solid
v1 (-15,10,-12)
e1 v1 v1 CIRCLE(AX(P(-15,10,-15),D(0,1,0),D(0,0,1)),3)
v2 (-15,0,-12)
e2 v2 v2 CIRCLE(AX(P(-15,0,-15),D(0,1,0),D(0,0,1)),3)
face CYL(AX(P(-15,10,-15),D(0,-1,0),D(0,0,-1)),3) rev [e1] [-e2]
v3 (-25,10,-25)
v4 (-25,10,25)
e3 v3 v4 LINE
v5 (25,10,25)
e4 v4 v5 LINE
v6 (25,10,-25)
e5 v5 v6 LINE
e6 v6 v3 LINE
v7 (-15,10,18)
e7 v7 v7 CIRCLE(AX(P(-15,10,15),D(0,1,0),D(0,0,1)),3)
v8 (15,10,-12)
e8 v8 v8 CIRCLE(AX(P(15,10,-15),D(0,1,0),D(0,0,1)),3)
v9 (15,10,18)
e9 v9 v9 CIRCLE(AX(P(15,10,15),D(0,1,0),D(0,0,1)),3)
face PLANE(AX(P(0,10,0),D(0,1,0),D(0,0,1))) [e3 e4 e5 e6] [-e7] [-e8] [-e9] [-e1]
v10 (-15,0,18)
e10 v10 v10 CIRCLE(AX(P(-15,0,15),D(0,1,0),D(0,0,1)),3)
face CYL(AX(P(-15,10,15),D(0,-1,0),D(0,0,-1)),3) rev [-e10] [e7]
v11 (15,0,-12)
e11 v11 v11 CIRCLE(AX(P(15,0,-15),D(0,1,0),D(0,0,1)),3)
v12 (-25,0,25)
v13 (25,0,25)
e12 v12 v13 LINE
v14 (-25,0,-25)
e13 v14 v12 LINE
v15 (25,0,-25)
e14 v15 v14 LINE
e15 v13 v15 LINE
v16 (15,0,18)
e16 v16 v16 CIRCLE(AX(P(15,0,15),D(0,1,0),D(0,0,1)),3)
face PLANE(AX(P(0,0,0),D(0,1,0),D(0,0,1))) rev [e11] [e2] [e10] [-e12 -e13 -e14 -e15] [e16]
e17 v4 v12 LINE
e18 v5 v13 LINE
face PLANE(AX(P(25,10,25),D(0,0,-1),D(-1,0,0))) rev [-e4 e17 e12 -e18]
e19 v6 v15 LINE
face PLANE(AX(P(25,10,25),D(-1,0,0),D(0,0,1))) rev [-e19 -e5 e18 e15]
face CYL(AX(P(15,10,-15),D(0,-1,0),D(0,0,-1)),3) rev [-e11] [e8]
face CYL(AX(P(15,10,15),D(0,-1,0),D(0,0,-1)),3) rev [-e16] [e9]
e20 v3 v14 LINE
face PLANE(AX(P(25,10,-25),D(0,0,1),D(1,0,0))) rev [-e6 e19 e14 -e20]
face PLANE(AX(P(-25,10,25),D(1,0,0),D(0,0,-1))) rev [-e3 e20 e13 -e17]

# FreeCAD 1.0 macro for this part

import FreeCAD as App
import Part
import Sketcher

doc = App.newDocument("Part")
body = doc.addObject("PartDesign::Body", "Body")

# Sketch on XZ plane
sketch1 = body.newObject("Sketcher::SketchObject", "Sketch")
sketch1.AttachmentSupport = (doc.getObject("XZ_Plane"), [""])
sketch1.MapMode = "FlatFace"
sketch1.addGeometry(Part.LineSegment(App.Vector(-25, -25, 0), App.Vector(-25, 25, 0)), False)
sketch1.addGeometry(Part.LineSegment(App.Vector(-25, 25, 0), App.Vector(25, 25, 0)), False)
sketch1.addGeometry(Part.LineSegment(App.Vector(25, 25, 0), App.Vector(25, -25, 0)), False)
sketch1.addGeometry(Part.LineSegment(App.Vector(25, -25, 0), App.Vector(-25, -25, 0)), False)
sketch1.addGeometry(Part.Circle(App.Vector(-15, 15, 0), App.Vector(0, 0, 1), 3), False)
sketch1.addGeometry(Part.Circle(App.Vector(15, 15, 0), App.Vector(0, 0, 1), 3), False)
sketch1.addGeometry(Part.Circle(App.Vector(-15, -15, 0), App.Vector(0, 0, 1), 3), False)
sketch1.addGeometry(Part.Circle(App.Vector(15, -15, 0), App.Vector(0, 0, 1), 3), False)
sketch1.addConstraint(Sketcher.Constraint("Coincident", 0, 2, 1, 1))
sketch1.addConstraint(Sketcher.Constraint("Coincident", 1, 2, 2, 1))
sketch1.addConstraint(Sketcher.Constraint("Coincident", 2, 2, 3, 1))
sketch1.addConstraint(Sketcher.Constraint("Coincident", 3, 2, 0, 1))
sketch1.addConstraint(Sketcher.Constraint("Vertical", 0))
sketch1.addConstraint(Sketcher.Constraint("Horizontal", 1))
sketch1.addConstraint(Sketcher.Constraint("Vertical", 2))
sketch1.addConstraint(Sketcher.Constraint("Horizontal", 3))
sketch1.addConstraint(Sketcher.Constraint("Equal", 4, 5))
sketch1.addConstraint(Sketcher.Constraint("Equal", 5, 6))
sketch1.addConstraint(Sketcher.Constraint("Equal", 6, 7))
sketch1.addConstraint(Sketcher.Constraint("Symmetric", 5, 3, 6, 3, -1, 1))
sketch1.addConstraint(Sketcher.Constraint("Symmetric", 4, 3, 7, 3, -1, 1))
sketch1.addConstraint(Sketcher.Constraint("Symmetric", 0, 2, 2, 2, -1, 1))
sketch1.addConstraint(Sketcher.Constraint("Symmetric", 4, 3, 5, 3, -2))
sketch1.addConstraint(Sketcher.Constraint("Equal", 3, 0))
sketch1.addConstraint(Sketcher.Constraint("Diameter", 4, 6.0))
sketch1.addConstraint(Sketcher.Constraint("DistanceX", 1, 1, 1, 2, 50.0))
sketch1.addConstraint(Sketcher.Constraint("DistanceX", 4, 3, -1, 1, 15.0))
sketch1.addConstraint(Sketcher.Constraint("DistanceY", -1, 1, 4, 3, 15.0))
pad1 = body.newObject("PartDesign::Pad", "Pad")
pad1.Profile = sketch1
pad1.Length = 10
pad1.Reversed = True

doc.recompute()
